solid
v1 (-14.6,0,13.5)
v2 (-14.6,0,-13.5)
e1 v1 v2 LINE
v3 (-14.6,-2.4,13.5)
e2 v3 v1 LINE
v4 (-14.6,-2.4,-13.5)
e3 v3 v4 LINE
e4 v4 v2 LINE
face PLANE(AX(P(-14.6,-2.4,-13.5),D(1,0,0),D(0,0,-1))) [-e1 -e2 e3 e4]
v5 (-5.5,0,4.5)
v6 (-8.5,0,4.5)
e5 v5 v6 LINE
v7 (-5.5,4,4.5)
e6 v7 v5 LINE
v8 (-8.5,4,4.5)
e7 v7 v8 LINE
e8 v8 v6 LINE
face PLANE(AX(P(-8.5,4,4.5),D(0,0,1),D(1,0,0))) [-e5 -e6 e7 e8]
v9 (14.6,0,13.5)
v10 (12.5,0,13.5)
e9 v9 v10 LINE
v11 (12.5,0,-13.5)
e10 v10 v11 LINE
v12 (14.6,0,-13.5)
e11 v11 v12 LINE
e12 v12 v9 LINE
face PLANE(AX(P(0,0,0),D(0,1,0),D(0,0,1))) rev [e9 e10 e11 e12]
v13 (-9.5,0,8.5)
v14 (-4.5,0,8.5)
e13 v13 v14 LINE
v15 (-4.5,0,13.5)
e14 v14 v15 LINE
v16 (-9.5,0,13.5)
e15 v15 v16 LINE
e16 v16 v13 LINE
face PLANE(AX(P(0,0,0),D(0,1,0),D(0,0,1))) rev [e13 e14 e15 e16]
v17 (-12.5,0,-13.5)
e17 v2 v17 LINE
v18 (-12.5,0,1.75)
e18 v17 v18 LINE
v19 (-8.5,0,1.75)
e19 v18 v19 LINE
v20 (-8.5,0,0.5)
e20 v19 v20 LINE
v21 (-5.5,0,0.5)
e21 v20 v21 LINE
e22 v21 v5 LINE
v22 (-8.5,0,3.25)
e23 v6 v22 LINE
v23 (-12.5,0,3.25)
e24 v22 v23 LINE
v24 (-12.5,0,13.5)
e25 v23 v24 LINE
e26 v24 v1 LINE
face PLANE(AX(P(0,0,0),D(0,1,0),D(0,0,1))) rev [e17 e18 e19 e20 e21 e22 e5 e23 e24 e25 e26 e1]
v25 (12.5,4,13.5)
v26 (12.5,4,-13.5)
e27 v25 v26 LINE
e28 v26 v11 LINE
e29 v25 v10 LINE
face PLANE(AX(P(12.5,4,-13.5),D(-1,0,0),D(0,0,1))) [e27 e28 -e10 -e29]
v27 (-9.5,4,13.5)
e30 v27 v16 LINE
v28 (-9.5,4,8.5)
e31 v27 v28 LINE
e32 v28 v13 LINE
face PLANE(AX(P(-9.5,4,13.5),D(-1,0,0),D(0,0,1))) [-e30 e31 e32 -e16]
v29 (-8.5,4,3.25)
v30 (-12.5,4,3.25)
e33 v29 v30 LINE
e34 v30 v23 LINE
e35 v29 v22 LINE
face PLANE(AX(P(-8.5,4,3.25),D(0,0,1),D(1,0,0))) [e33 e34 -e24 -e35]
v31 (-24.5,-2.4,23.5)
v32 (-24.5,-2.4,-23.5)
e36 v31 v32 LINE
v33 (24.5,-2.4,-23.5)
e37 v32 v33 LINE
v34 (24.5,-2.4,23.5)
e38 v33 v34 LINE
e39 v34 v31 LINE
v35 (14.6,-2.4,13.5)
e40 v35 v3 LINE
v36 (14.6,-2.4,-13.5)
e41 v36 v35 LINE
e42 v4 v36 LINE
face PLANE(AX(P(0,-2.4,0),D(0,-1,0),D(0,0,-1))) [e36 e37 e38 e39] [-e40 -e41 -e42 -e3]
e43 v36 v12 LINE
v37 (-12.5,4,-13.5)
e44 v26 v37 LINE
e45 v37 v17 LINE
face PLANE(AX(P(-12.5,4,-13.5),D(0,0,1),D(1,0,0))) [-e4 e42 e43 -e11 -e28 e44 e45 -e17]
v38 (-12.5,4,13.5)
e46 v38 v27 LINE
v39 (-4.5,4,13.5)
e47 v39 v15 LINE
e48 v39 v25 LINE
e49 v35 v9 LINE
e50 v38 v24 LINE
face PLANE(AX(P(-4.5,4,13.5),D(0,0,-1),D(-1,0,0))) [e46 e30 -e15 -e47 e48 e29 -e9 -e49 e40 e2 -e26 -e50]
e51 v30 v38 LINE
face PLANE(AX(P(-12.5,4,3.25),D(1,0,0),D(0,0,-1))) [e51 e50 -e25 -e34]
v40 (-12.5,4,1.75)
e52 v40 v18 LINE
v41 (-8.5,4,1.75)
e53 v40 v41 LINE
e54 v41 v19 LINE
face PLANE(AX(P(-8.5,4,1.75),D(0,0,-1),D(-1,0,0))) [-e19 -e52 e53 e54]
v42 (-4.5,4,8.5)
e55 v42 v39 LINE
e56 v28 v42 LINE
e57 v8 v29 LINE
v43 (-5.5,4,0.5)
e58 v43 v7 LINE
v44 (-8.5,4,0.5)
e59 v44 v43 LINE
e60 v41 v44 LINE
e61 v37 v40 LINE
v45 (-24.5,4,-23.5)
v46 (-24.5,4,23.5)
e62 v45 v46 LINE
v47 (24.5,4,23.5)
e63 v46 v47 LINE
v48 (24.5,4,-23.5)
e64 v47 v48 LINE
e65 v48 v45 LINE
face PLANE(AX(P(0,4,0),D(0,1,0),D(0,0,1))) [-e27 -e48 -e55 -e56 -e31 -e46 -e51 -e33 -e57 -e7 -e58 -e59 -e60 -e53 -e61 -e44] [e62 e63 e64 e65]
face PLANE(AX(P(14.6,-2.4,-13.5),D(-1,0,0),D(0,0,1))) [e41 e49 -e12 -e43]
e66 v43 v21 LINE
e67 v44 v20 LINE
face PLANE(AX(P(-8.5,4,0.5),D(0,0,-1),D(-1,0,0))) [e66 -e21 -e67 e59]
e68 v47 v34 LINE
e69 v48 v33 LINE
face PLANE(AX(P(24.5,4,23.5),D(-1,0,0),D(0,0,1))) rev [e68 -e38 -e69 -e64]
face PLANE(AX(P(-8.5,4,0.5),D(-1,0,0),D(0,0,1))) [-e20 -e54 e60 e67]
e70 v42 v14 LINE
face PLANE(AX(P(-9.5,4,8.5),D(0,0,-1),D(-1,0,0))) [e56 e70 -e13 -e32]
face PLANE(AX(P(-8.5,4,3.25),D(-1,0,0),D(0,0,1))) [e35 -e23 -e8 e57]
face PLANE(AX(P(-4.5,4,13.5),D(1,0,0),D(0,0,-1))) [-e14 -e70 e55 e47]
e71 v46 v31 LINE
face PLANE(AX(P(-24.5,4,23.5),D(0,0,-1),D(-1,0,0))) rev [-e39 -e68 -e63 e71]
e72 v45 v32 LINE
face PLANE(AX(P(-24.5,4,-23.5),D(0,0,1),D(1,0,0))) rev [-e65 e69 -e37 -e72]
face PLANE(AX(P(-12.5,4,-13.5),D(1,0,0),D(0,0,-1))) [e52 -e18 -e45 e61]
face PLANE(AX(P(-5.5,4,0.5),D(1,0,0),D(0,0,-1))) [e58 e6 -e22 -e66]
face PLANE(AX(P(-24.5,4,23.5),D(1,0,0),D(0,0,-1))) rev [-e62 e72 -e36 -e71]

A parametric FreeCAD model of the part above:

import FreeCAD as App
import Part
import Sketcher
Q = App.Units.Quantity


def add_polygon(sketch, points):
    """Adds a closed chain of lines whose ends are joined by coincident constraints."""
    first, n = sketch.GeometryCount, len(points)
    for a, b in zip(points, points[1:] + points[:1]):
        sketch.addGeometry(Part.LineSegment(App.Vector(*a, 0), App.Vector(*b, 0)), False)
    for i in range(n):
        sketch.addConstraint(Sketcher.Constraint("Coincident", first + i, 2, first + (i + 1) % n, 1))

doc = App.newDocument("Part")
body = doc.addObject("PartDesign::Body", "Body")

sketch1 = body.newObject("Sketcher::SketchObject", "Sketch")
sketch1.AttachmentSupport = (doc.getObject("XZ_Plane"), [""])
sketch1.MapMode = "FlatFace"
add_polygon(sketch1, [(-24.5, -23.5), (-24.5, 23.5), (24.5, 23.5), (24.5, -23.5)])
add_polygon(sketch1, [(-9.5, 13.5), (-12.5, 13.5), (-12.5, 3.2), (-8.5, 3.2), (-8.5, 4.5), (-5.5, 4.5), (-5.5, 0.5), (-8.5, 0.5), (-8.5, 1.8), (-12.5, 1.8), (-12.5, -13.5), (12.5, -13.5), (12.5, 13.5), (-4.5, 13.5), (-4.5, 8.5), (-9.5, 8.5)])
sketch1.addConstraint([
    Sketcher.Constraint("Vertical", 0),
    Sketcher.Constraint("Horizontal", 1),
    Sketcher.Constraint("Vertical", 2),
    Sketcher.Constraint("Horizontal", 3),
    Sketcher.Constraint("Horizontal", 4),
    Sketcher.Constraint("Vertical", 5),
    Sketcher.Constraint("Horizontal", 6),
    Sketcher.Constraint("Vertical", 7),
    Sketcher.Constraint("Horizontal", 8),
    Sketcher.Constraint("Vertical", 9),
    Sketcher.Constraint("Horizontal", 10),
    Sketcher.Constraint("Vertical", 11),
    Sketcher.Constraint("Horizontal", 12),
    Sketcher.Constraint("Vertical", 13),
    Sketcher.Constraint("Horizontal", 14),
    Sketcher.Constraint("Vertical", 15),
    Sketcher.Constraint("Horizontal", 16),
    Sketcher.Constraint("Vertical", 17),
    Sketcher.Constraint("Horizontal", 18),
    Sketcher.Constraint("Vertical", 19),
    Sketcher.Constraint("Symmetric", 0, 2, 2, 2, -1, 1),
    Sketcher.Constraint("Symmetric", 4, 2, 14, 2, -1, 1),
    Sketcher.Constraint("Symmetric", 13, 2, 15, 2, -1, 1),
    Sketcher.Constraint("Vertical", 7, 2, 10, 2),
    Sketcher.Constraint("Equal", 4, 8),
    Sketcher.Constraint("Equal", 12, 9),
    Sketcher.Constraint("Equal", 7, 11),
    Sketcher.Constraint("Equal", 18, 17),
    Sketcher.Constraint("DistanceX", 1, 1, 1, 2, Q("49 mm")),
    Sketcher.Constraint("DistanceX", 4, 2, 4, 1, Q("3 mm")),
    Sketcher.Constraint("DistanceX", 6, 1, 6, 2, Q("4 mm")),
    Sketcher.Constraint("DistanceX", 14, 1, 14, 2, Q("25 mm")),
    Sketcher.Constraint("DistanceX", 16, 2, 16, 1, Q("17 mm")),
    Sketcher.Constraint("DistanceY", 0, 1, 0, 2, Q("47 mm")),
    Sketcher.Constraint("DistanceY", 15, 1, 15, 2, Q("27 mm")),
    Sketcher.Constraint("DistanceY", 7, 2, 4, 2, Q("9 mm")),
    Sketcher.Constraint("DistanceY", 5, 2, 5, 1, Q("10.25 mm")),
])
pad1 = body.newObject("PartDesign::Pad", "Pad")
pad1.Profile = sketch1
pad1.Length = 4
pad1.Reversed = True

sketch2 = body.newObject("Sketcher::SketchObject", "Sketch001")
sketch2.AttachmentSupport = (doc.getObject("XZ_Plane"), [""])
sketch2.MapMode = "FlatFace"
add_polygon(sketch2, [(-24, 24), (-24, -24), (24, -24), (24, 24)])
add_polygon(sketch2, [(15, -14), (-15, -14), (-15, 14), (15, 14)])
sketch2.addConstraint([
    Sketcher.Constraint("Vertical", 0),
    Sketcher.Constraint("Horizontal", 1),
    Sketcher.Constraint("Vertical", 2),
    Sketcher.Constraint("Horizontal", 3),
    Sketcher.Constraint("Horizontal", 4),
    Sketcher.Constraint("Vertical", 5),
    Sketcher.Constraint("Horizontal", 6),
    Sketcher.Constraint("Vertical", 7),
    Sketcher.Constraint("Symmetric", 0, 2, 2, 2, -1, 1),
    Sketcher.Constraint("Symmetric", 4, 2, 6, 2, -1, 1),
    Sketcher.Constraint("DistanceX", 1, 1, 1, 2, Q("49 mm")),
    Sketcher.Constraint("DistanceY", 0, 2, 0, 1, Q("47 mm")),
    Sketcher.Constraint("DistanceY", 5, 1, 5, 2, Q("27 mm")),
    Sketcher.Constraint("DistanceX", 4, 2, 4, 1, Q("29.2 mm")),
])
pad2 = body.newObject("PartDesign::Pad", "Pad001")
pad2.Profile = sketch2
pad2.Length = 2.4

doc.recompute()
